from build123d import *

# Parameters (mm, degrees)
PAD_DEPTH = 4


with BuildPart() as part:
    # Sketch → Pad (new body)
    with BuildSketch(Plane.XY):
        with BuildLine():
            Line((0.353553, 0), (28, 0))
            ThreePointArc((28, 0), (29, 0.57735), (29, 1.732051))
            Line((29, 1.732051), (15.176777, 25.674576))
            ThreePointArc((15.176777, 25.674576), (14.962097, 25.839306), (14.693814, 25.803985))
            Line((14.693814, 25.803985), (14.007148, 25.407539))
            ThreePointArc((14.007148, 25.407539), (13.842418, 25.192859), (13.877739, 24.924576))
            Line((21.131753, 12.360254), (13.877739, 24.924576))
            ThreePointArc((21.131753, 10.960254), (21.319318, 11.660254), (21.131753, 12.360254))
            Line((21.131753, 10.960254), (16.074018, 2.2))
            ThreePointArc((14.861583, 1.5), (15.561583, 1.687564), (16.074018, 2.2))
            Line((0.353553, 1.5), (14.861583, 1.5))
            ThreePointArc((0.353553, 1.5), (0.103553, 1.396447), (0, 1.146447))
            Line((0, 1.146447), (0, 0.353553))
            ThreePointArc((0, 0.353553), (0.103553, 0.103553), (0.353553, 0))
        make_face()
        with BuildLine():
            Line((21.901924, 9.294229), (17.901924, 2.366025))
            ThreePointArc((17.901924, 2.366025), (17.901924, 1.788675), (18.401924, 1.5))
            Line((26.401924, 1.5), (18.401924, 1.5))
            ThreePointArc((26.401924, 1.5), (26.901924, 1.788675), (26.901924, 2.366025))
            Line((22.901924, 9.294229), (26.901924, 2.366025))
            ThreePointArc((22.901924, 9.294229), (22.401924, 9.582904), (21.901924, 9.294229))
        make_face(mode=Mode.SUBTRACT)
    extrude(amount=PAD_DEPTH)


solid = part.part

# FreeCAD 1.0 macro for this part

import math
import FreeCAD as App
import Part
import Sketcher

doc = App.newDocument("Part")
body = doc.addObject("PartDesign::Body", "Body")

sketch1 = body.newObject("Sketcher::SketchObject", "Sketch")
sketch1.AttachmentSupport = (doc.getObject("XY_Plane"), [""])
sketch1.MapMode = "FlatFace"
sketch1.addGeometry(Part.LineSegment(App.Vector(0.353553, 0, 0), App.Vector(28, 0, 0)), False)
sketch1.addGeometry(Part.ArcOfCircle(Part.Circle(App.Vector(28, 1.1547, 0), App.Vector(0, 0, 1), 1.1547), math.radians(-90.000009), math.radians(30.000014)), False)
sketch1.addGeometry(Part.LineSegment(App.Vector(29, 1.732051, 0), App.Vector(15.176777, 25.674576, 0)), False)
sketch1.addGeometry(Part.ArcOfCircle(Part.Circle(App.Vector(14.870592, 25.497801, 0), App.Vector(0, 0, 1), 0.353552), math.radians(29.999836), math.radians(120.000284)), False)
sketch1.addGeometry(Part.LineSegment(App.Vector(14.693814, 25.803985, 0), App.Vector(14.007148, 25.407539, 0)), False)
sketch1.addGeometry(Part.ArcOfCircle(Part.Circle(App.Vector(14.183923, 25.101354, 0), App.Vector(0, 0, 1), 0.353552), math.radians(119.999836), math.radians(210.000284)), False)
sketch1.addGeometry(Part.LineSegment(App.Vector(13.877739, 24.924576, 0), App.Vector(21.131753, 12.360254, 0)), False)
sketch1.addGeometry(Part.ArcOfCircle(Part.Circle(App.Vector(19.919322, 11.660254, 0), App.Vector(0, 0, 1), 1.399996), math.radians(-30.000086), math.radians(30.000086)), False)
sketch1.addGeometry(Part.LineSegment(App.Vector(21.131753, 10.960254, 0), App.Vector(16.074018, 2.2, 0)), False)
sketch1.addGeometry(Part.ArcOfCircle(Part.Circle(App.Vector(14.861585, 2.899996, 0), App.Vector(0, 0, 1), 1.399996), math.radians(-90.000078), math.radians(-29.999899)), False)
sketch1.addGeometry(Part.LineSegment(App.Vector(14.861583, 1.5, 0), App.Vector(0.353553, 1.5, 0)), False)
sketch1.addGeometry(Part.ArcOfCircle(Part.Circle(App.Vector(0.353552, 1.146448, 0), App.Vector(0, 0, 1), 0.353552), math.radians(89.999847), math.radians(180.000153)), False)
sketch1.addGeometry(Part.LineSegment(App.Vector(0, 1.146447, 0), App.Vector(0, 0.353553, 0)), False)
sketch1.addGeometry(Part.ArcOfCircle(Part.Circle(App.Vector(0.353552, 0.353552, 0), App.Vector(0, 0, 1), 0.353552), math.radians(179.999847), math.radians(270.000153)), False)
sketch1.addGeometry(Part.LineSegment(App.Vector(17.901924, 2.366025, 0), App.Vector(21.901924, 9.294229, 0)), False)
sketch1.addGeometry(Part.ArcOfCircle(Part.Circle(App.Vector(22.401924, 9.005554, 0), App.Vector(0, 0, 1), 0.57735), math.radians(30.000023), math.radians(149.999977)), False)
sketch1.addGeometry(Part.LineSegment(App.Vector(22.901924, 9.294229, 0), App.Vector(26.901924, 2.366025, 0)), False)
sketch1.addGeometry(Part.ArcOfCircle(Part.Circle(App.Vector(26.401924, 2.07735, 0), App.Vector(0, 0, 1), 0.57735), math.radians(-90.000023), math.radians(30)), False)
sketch1.addGeometry(Part.LineSegment(App.Vector(26.401924, 1.5, 0), App.Vector(18.401924, 1.5, 0)), False)
sketch1.addGeometry(Part.ArcOfCircle(Part.Circle(App.Vector(18.401924, 2.07735, 0), App.Vector(0, 0, 1), 0.57735), math.radians(150), math.radians(270.000023)), False)
sketch1.addConstraint(Sketcher.Constraint("Coincident", 0, 2, 1, 1))
sketch1.addConstraint(Sketcher.Constraint("Coincident", 1, 2, 2, 1))
sketch1.addConstraint(Sketcher.Constraint("Coincident", 2, 2, 3, 1))
sketch1.addConstraint(Sketcher.Constraint("Coincident", 3, 2, 4, 1))
sketch1.addConstraint(Sketcher.Constraint("Coincident", 4, 2, 5, 1))
sketch1.addConstraint(Sketcher.Constraint("Coincident", 5, 2, 6, 1))
sketch1.addConstraint(Sketcher.Constraint("Coincident", 6, 2, 7, 2))
sketch1.addConstraint(Sketcher.Constraint("Coincident", 7, 1, 8, 1))
sketch1.addConstraint(Sketcher.Constraint("Coincident", 8, 2, 9, 2))
sketch1.addConstraint(Sketcher.Constraint("Coincident", 9, 1, 10, 1))
sketch1.addConstraint(Sketcher.Constraint("Coincident", 10, 2, 11, 1))
sketch1.addConstraint(Sketcher.Constraint("Coincident", 11, 2, 12, 1))
sketch1.addConstraint(Sketcher.Constraint("Coincident", 12, 2, 13, 1))
sketch1.addConstraint(Sketcher.Constraint("Coincident", 13, 2, 0, 1))
sketch1.addConstraint(Sketcher.Constraint("Coincident", 14, 2, 15, 2))
sketch1.addConstraint(Sketcher.Constraint("Coincident", 15, 1, 16, 1))
sketch1.addConstraint(Sketcher.Constraint("Coincident", 16, 2, 17, 2))
sketch1.addConstraint(Sketcher.Constraint("Coincident", 17, 1, 18, 1))
sketch1.addConstraint(Sketcher.Constraint("Coincident", 18, 2, 19, 2))
sketch1.addConstraint(Sketcher.Constraint("Coincident", 19, 1, 14, 1))
sketch1.addConstraint(Sketcher.Constraint("Horizontal", 0))
sketch1.addConstraint(Sketcher.Constraint("Horizontal", 10))
sketch1.addConstraint(Sketcher.Constraint("Vertical", 12))
sketch1.addConstraint(Sketcher.Constraint("Horizontal", 18))
sketch1.addConstraint(Sketcher.Constraint("PointOnObject", 0, 2, -1))
sketch1.addConstraint(Sketcher.Constraint("PointOnObject", 11, 2, -2))
sketch1.addConstraint(Sketcher.Constraint("DistanceX", 18, 2, 18, 1, 8.0))
sketch1.addConstraint(Sketcher.Constraint("Distance", 14, 8.000001))
sketch1.addConstraint(Sketcher.Constraint("Distance", 16, 8.000001))
sketch1.addConstraint(Sketcher.Constraint("DistanceX", -1, 1, 1, 3, 28.0))
sketch1.addConstraint(Sketcher.Constraint("DistanceX", -1, 1, 0, 2, 28.0))
sketch1.addConstraint(Sketcher.Constraint("DistanceX", -1, 1, 1, 2, 29.0))
sketch1.addConstraint(Sketcher.Constraint("DistanceX", 15, 3, 17, 3, 4.0))
sketch1.addConstraint(Sketcher.Constraint("DistanceX", 19, 3, 15, 3, 4.0))
sketch1.addConstraint(Sketcher.Constraint("DistanceX", 14, 2, 15, 1, 1.0))
sketch1.addConstraint(Sketcher.Constraint("DistanceX", 15, 1, 16, 2, 4.0))
sketch1.addConstraint(Sketcher.Constraint("DistanceY", -1, 1, 8, 2, 2.2))
sketch1.addConstraint(Sketcher.Constraint("DistanceY", -1, 1, 9, 1, 1.5))
sketch1.addConstraint(Sketcher.Constraint("DistanceY", -1, 1, 17, 1, 1.5))
sketch1.addConstraint(Sketcher.Constraint("Radius", 1, 1.1547))
sketch1.addConstraint(Sketcher.Constraint("DistanceY", 7, 3, 6, 2, 0.7))
sketch1.addConstraint(Sketcher.Constraint("DistanceY", 7, 1, 7, 3, 0.7))
sketch1.addConstraint(Sketcher.Constraint("DistanceX", 14, 2, 15, 3, 0.5))
sketch1.addConstraint(Sketcher.Constraint("DistanceX", 17, 1, 16, 2, 0.5))
sketch1.addConstraint(Sketcher.Constraint("DistanceX", 19, 1, 19, 3, 0.5))
sketch1.addConstraint(Sketcher.Constraint("Radius", 3, 0.353552))
sketch1.addConstraint(Sketcher.Constraint("Radius", 5, 0.353552))
sketch1.addConstraint(Sketcher.Constraint("Radius", 15, 0.57735))
sketch1.addConstraint(Sketcher.Constraint("Radius", 17, 0.57735))
sketch1.addConstraint(Sketcher.Constraint("DistanceY", 5, 2, 2, 2, 0.75))
sketch1.addConstraint(Sketcher.Constraint("Radius", 7, 1.399996))
sketch1.addConstraint(Sketcher.Constraint("Radius", 9, 1.399996))
sketch1.addConstraint(Sketcher.Constraint("Radius", 11, 0.353552))
sketch1.addConstraint(Sketcher.Constraint("Radius", 13, 0.353552))
sketch1.addConstraint(Sketcher.Constraint("DistanceX", 5, 3, 15, 3, 8.218001))
sketch1.addConstraint(Sketcher.Constraint("DistanceX", 10, 2, 10, 1, 14.50803))
sketch1.addConstraint(Sketcher.Constraint("DistanceY", -1, 1, 3, 3, 25.497801))
sketch1.addConstraint(Sketcher.Constraint("DistanceX", 5, 3, 7, 3, 5.735399))
sketch1.addConstraint(Sketcher.Constraint("DistanceY", 7, 3, 5, 3, 13.4411))
sketch1.addConstraint(Sketcher.Constraint("DistanceY", 13, 3, 7, 3, 11.306702))
sketch1.addConstraint(Sketcher.Constraint("Distance", 6, 14.508029))
sketch1.addConstraint(Sketcher.Constraint("Distance", 8, 10.11547))
sketch1.addConstraint(Sketcher.Constraint("DistanceX", 0, 1, 0, 2, 27.646447))
sketch1.addConstraint(Sketcher.Constraint("DistanceY", 12, 2, 12, 1, 0.792894))
sketch1.addConstraint(Sketcher.Constraint("DistanceX", -1, 1, 3, 3, 14.870592))
sketch1.addConstraint(Sketcher.Constraint("DistanceX", -1, 1, 7, 3, 19.919322))
sketch1.addConstraint(Sketcher.Constraint("DistanceX", -1, 1, 4, 2, 14.007148))
sketch1.addConstraint(Sketcher.Constraint("DistanceY", 2, 2, 3, 2, 0.129409))
sketch1.addConstraint(Sketcher.Constraint("DistanceX", 9, 1, 19, 3, 3.540341))
sketch1.addConstraint(Sketcher.Constraint("DistanceY", 11, 2, 9, 3, 1.753549))
pad1 = body.newObject("PartDesign::Pad", "Pad")
pad1.Profile = sketch1
pad1.Length = 4

doc.recompute()
